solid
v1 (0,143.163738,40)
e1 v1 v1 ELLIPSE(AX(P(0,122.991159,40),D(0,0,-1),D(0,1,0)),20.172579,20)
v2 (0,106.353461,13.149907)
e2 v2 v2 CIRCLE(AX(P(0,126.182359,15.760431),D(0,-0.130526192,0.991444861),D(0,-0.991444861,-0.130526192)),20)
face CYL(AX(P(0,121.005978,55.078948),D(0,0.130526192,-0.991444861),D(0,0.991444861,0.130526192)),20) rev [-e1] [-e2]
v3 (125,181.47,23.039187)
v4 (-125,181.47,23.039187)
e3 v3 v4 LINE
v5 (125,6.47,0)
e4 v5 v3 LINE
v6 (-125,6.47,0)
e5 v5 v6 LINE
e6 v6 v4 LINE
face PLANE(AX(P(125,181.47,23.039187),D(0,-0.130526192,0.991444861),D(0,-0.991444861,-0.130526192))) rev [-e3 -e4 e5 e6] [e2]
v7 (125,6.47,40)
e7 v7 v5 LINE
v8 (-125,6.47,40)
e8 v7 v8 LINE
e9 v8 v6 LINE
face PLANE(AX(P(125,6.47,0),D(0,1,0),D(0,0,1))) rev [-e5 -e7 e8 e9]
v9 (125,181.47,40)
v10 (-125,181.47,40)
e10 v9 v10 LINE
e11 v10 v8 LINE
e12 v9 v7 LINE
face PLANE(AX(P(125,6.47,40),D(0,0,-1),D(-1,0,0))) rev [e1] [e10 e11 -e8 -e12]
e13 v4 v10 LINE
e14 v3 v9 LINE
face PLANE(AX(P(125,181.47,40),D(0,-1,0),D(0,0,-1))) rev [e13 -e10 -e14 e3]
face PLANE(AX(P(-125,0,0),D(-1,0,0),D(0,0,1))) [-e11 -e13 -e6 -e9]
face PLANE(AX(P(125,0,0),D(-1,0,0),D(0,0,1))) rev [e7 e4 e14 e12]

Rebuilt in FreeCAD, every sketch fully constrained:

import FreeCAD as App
import Part
import Sketcher
Q = App.Units.Quantity


def add_polygon(sketch, points):
    """Adds a closed chain of lines whose ends are joined by coincident constraints."""
    first, n = sketch.GeometryCount, len(points)
    for a, b in zip(points, points[1:] + points[:1]):
        sketch.addGeometry(Part.LineSegment(App.Vector(*a, 0), App.Vector(*b, 0)), False)
    for i in range(n):
        sketch.addConstraint(Sketcher.Constraint("Coincident", first + i, 2, first + (i + 1) % n, 1))

doc = App.newDocument("Part")
body = doc.addObject("PartDesign::Body", "Body")

sketch1 = body.newObject("Sketcher::SketchObject", "Sketch")
sketch1.AttachmentSupport = (doc.getObject("YZ_Plane"), [""])
sketch1.MapMode = "FlatFace"
add_polygon(sketch1, [(6, 40), (6, 0), (181, 23), (181, 40)])
sketch1.addConstraint([
    Sketcher.Constraint("Vertical", 0),
    Sketcher.Constraint("Vertical", 2),
    Sketcher.Constraint("Horizontal", 3),
    Sketcher.Constraint("PointOnObject", 0, 2, -1),
    Sketcher.Constraint("DistanceX", 3, 2, 3, 1, 175.0),
    Sketcher.Constraint("DistanceY", 0, 2, 0, 1, 40.0),
    Sketcher.Constraint("Angle", 1, Q("7.5 deg")),
    Sketcher.Constraint("DistanceX", -1, 1, 0, 2, 6.47),
])
pad1 = body.newObject("PartDesign::Pad", "Pad")
pad1.Profile = sketch1
pad1.Length = 250
pad1.Midplane = True

sketch2 = body.newObject("Sketcher::SketchObject", "Sketch001")
sketch2.Placement = App.Placement(App.Vector(0, 0.893387, -6.785949), App.Rotation(App.Vector(-1, 0, 0), App.Vector(0, 0.991444861, 0.130526192), App.Vector(0, 0.130526192, -0.991444861), "ZXY"))
sketch2.addGeometry(Part.Circle(App.Vector(0, 127, 0), App.Vector(0, 0, 1), 20), False)
sketch2.addConstraint([
    Sketcher.Constraint("PointOnObject", 0, 3, -2),
    Sketcher.Constraint("Diameter", 0, 40.0),
    Sketcher.Constraint("DistanceY", -1, 1, 0, 3, 127.16),
])
pocket1 = body.newObject("PartDesign::Pocket", "Pocket")
pocket1.Profile = sketch2
pocket1.Type = "ThroughAll"
pocket1.Midplane = True

doc.recompute()
